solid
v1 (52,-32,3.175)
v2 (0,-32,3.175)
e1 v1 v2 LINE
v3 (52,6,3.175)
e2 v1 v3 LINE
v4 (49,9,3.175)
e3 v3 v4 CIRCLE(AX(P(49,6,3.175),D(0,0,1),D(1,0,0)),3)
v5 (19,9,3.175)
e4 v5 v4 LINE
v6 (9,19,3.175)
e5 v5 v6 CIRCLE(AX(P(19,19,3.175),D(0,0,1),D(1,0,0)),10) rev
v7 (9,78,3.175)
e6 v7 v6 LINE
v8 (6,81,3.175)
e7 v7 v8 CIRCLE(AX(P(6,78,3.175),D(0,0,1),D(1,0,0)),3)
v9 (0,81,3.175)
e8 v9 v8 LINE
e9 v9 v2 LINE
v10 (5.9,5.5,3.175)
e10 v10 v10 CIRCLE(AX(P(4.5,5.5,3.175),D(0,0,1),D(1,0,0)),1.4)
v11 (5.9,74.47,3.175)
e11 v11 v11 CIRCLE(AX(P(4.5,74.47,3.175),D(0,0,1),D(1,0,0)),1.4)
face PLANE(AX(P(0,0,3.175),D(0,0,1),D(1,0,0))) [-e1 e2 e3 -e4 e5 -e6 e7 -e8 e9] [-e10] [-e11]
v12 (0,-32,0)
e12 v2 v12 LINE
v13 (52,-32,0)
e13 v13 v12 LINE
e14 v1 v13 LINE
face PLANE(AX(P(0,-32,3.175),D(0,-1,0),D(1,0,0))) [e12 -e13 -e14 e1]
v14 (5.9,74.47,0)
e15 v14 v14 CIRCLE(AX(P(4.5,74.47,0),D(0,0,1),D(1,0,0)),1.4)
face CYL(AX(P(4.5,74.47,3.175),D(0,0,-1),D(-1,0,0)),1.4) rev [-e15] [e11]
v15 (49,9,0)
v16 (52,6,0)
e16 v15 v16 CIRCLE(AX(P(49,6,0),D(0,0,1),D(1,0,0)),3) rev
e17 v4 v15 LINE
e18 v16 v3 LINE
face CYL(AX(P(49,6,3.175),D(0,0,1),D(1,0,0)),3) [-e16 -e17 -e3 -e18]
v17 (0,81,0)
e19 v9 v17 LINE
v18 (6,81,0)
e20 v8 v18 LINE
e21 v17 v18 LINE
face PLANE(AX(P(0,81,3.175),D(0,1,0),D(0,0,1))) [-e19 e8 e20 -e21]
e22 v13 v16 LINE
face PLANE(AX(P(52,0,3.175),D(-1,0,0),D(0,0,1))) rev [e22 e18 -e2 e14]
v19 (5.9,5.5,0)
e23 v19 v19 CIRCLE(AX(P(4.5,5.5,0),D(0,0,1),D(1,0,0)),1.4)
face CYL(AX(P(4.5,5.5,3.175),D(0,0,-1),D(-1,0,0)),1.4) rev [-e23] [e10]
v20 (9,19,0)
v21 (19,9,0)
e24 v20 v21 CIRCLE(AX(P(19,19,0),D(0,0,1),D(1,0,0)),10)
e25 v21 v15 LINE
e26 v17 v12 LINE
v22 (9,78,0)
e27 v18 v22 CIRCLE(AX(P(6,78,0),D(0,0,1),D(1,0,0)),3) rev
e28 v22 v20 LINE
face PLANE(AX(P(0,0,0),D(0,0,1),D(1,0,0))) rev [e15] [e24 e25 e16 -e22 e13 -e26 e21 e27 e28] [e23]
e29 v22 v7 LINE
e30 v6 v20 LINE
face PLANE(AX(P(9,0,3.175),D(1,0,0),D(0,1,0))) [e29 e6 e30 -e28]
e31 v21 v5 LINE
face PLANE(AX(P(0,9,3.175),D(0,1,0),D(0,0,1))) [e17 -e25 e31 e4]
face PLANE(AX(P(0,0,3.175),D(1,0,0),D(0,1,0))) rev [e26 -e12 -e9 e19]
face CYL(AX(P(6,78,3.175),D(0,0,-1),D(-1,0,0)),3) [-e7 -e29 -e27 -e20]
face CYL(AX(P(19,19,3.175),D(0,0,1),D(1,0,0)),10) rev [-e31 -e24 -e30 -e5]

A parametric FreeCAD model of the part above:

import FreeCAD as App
import Part
import Sketcher

V = App.Vector
Q = App.Units.Quantity


def edges_at(feature, points):
    """Names of the edges that pass closest to the given points."""
    edges = feature.Shape.Edges
    near = lambda p: min(range(len(edges)), key=lambda i: edges[i].distToShape(Part.Vertex(*p))[0])
    return sorted({f"Edge{near(p) + 1}" for p in points})

doc = App.newDocument("Part")
body = doc.addObject("PartDesign::Body", "Body")

sketch1 = body.newObject("Sketcher::SketchObject", "Sketch")
sketch1.AttachmentSupport = (doc.getObject("XY_Plane"), [""])
sketch1.MapMode = "FlatFace"
sketch1.addGeometry(Part.LineSegment(V(9, 9, 0), V(9, 81, 0)), False)
sketch1.addGeometry(Part.LineSegment(V(9, 81, 0), V(0, 81, 0)), False)
sketch1.addGeometry(Part.LineSegment(V(0, 81, 0), V(0, -32, 0)), False)
sketch1.addGeometry(Part.LineSegment(V(0, -32, 0), V(52, -32, 0)), False)
sketch1.addGeometry(Part.LineSegment(V(52, -32, 0), V(52, 9, 0)), False)
sketch1.addGeometry(Part.LineSegment(V(52, 9, 0), V(9, 9, 0)), False)
sketch1.addGeometry(Part.Circle(V(4.5, 5.5, 0), V(0, 0, 1), 1.4), False)
sketch1.addGeometry(Part.Circle(V(4.5, 74.5, 0), V(0, 0, 1), 1.4), False)
sketch1.addConstraint(Sketcher.Constraint("Coincident", 0, 2, 1, 1))
sketch1.addConstraint(Sketcher.Constraint("Coincident", 1, 2, 2, 1))
sketch1.addConstraint(Sketcher.Constraint("Coincident", 2, 2, 3, 1))
sketch1.addConstraint(Sketcher.Constraint("Coincident", 3, 2, 4, 1))
sketch1.addConstraint(Sketcher.Constraint("Coincident", 4, 2, 5, 1))
sketch1.addConstraint(Sketcher.Constraint("Coincident", 5, 2, 0, 1))
sketch1.addConstraint(Sketcher.Constraint("Vertical", 0))
sketch1.addConstraint(Sketcher.Constraint("Horizontal", 1))
sketch1.addConstraint(Sketcher.Constraint("Vertical", 2))
sketch1.addConstraint(Sketcher.Constraint("Horizontal", 3))
sketch1.addConstraint(Sketcher.Constraint("Vertical", 4))
sketch1.addConstraint(Sketcher.Constraint("Horizontal", 5))
sketch1.addConstraint(Sketcher.Constraint("Equal", 6, 7))
sketch1.addConstraint(Sketcher.Constraint("PointOnObject", 1, 2, -2))
sketch1.addConstraint(Sketcher.Constraint("Vertical", 6, 3, 7, 3))
sketch1.addConstraint(Sketcher.Constraint("Diameter", 6, Q("2.8 mm")))
sketch1.addConstraint(Sketcher.Constraint("DistanceX", 1, 2, 1, 1, Q("9 mm")))
sketch1.addConstraint(Sketcher.Constraint("DistanceX", 3, 1, 3, 2, Q("52 mm")))
sketch1.addConstraint(Sketcher.Constraint("DistanceY", 0, 1, 0, 2, Q("72 mm")))
sketch1.addConstraint(Sketcher.Constraint("DistanceY", 2, 2, 2, 1, Q("113 mm")))
sketch1.addConstraint(Sketcher.Constraint("DistanceY", -1, 1, 0, 2, Q("81 mm")))
sketch1.addConstraint(Sketcher.Constraint("DistanceX", -1, 1, 6, 3, Q("4.5 mm")))
sketch1.addConstraint(Sketcher.Constraint("DistanceY", -1, 1, 6, 3, Q("5.5 mm")))
sketch1.addConstraint(Sketcher.Constraint("DistanceY", -1, 1, 7, 3, Q("74.47 mm")))
pad1 = body.newObject("PartDesign::Pad", "Pad")
pad1.Profile = sketch1
pad1.Length = 3.175
doc.recompute()

fillet = body.newObject("PartDesign::Fillet", "Fillet")
fillet.Base = (pad1, edges_at(pad1, [(9, 9, 1.587)]))
fillet.Radius = 10
doc.recompute()

fillet2 = body.newObject("PartDesign::Fillet", "Fillet001")
fillet2.Base = (fillet, edges_at(fillet, [(9, 81, 1.587), (52, 9, 1.587)]))
fillet2.Radius = 3

doc.recompute()
